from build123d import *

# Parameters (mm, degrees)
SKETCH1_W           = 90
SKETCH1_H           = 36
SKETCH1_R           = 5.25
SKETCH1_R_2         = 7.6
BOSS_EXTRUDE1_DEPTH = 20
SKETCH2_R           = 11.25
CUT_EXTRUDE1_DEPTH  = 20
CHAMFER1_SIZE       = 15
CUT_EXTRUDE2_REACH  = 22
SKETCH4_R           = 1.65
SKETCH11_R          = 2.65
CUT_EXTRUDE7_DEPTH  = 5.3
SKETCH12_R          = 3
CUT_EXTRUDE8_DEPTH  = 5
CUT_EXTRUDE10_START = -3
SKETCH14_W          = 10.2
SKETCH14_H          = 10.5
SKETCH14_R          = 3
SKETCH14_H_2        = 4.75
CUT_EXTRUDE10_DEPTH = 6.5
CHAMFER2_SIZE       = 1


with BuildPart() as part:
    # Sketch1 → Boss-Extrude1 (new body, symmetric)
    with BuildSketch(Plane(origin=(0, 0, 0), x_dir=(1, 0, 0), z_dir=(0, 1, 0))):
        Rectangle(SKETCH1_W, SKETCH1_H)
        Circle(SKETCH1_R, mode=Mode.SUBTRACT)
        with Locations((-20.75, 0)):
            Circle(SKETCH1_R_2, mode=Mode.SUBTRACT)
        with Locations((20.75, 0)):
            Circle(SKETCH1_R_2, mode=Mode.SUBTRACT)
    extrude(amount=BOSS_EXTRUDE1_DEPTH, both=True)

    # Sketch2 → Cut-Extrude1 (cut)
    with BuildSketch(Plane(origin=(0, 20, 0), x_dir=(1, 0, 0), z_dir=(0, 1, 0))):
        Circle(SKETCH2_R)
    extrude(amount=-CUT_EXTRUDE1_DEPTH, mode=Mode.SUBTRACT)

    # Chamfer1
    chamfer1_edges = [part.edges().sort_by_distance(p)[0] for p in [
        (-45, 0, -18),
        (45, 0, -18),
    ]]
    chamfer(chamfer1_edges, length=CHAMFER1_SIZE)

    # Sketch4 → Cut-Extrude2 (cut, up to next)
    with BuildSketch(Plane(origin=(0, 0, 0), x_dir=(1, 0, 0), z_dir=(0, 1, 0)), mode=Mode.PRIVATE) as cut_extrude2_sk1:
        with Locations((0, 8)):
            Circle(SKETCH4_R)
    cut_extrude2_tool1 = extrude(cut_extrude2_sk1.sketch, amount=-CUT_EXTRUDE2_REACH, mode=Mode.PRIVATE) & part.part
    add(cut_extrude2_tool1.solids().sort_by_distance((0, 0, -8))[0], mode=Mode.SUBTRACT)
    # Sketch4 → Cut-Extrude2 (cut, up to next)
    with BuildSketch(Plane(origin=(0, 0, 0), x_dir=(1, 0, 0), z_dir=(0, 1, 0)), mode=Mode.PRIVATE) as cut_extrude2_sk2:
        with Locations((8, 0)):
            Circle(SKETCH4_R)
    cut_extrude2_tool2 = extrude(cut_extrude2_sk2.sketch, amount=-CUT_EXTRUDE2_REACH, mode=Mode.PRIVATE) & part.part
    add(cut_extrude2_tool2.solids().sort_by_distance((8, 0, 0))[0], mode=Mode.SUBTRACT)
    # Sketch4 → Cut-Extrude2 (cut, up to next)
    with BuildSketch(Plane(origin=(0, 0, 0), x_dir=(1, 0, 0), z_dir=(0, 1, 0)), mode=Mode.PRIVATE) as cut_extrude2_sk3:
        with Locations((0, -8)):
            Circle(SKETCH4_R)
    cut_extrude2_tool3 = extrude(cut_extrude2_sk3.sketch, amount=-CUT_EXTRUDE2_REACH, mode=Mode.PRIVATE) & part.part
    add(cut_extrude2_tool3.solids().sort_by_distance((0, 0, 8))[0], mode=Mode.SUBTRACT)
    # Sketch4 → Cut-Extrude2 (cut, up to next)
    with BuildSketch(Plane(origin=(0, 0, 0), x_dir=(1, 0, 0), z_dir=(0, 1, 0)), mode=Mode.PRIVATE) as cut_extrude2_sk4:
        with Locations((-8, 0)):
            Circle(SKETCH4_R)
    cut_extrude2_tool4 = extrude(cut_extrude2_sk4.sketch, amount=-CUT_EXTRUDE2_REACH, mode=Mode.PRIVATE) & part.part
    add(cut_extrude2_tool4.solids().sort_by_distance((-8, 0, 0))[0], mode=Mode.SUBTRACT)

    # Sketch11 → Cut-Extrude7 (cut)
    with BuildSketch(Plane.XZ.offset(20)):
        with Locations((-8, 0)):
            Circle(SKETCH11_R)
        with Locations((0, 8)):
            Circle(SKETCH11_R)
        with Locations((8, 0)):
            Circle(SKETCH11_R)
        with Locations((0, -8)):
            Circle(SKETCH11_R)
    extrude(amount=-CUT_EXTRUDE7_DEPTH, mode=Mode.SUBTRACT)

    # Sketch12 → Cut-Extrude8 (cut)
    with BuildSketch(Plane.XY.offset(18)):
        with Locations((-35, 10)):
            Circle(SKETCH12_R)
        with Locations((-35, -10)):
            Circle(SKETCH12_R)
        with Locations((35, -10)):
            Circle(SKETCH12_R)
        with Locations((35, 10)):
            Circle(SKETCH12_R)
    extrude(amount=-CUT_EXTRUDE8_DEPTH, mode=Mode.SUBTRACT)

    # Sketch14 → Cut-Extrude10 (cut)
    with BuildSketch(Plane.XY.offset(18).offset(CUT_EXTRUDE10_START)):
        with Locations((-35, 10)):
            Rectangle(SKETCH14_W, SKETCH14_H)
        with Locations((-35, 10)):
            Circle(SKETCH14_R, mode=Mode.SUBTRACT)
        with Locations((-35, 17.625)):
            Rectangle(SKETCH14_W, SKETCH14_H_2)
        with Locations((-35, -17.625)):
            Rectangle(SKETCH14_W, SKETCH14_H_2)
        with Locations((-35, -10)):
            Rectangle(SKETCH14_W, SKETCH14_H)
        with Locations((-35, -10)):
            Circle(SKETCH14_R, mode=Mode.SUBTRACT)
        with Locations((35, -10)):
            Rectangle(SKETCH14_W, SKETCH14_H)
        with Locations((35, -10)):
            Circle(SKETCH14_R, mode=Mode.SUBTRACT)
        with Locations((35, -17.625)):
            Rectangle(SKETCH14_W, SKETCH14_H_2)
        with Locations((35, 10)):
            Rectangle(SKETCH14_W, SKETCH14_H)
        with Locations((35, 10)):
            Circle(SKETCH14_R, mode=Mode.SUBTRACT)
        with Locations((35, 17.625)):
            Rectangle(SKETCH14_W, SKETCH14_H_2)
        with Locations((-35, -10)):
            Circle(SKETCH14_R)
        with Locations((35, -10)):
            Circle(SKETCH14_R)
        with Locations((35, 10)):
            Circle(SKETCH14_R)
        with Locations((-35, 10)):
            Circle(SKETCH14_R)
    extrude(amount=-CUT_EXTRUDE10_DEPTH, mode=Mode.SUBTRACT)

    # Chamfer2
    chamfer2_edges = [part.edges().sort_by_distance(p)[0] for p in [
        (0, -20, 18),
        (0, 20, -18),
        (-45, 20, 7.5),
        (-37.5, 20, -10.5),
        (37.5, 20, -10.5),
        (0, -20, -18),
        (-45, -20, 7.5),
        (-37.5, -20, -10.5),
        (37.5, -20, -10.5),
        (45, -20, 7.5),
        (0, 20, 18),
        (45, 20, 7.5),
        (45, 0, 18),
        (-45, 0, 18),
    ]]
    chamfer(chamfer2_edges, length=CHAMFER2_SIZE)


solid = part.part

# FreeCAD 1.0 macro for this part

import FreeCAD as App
import Part
import Sketcher

V = App.Vector


def edges_at(feature, points):
    """Names of the edges that pass closest to the given points."""
    edges = feature.Shape.Edges
    near = lambda p: min(range(len(edges)), key=lambda i: edges[i].distToShape(Part.Vertex(*p))[0])
    return sorted({f"Edge{near(p) + 1}" for p in points})

doc = App.newDocument("Part")
body = doc.addObject("PartDesign::Body", "Body")

# Sketch on XZ plane
sketch1 = doc.addObject("Sketcher::SketchObject", "Sketch")
body.addObject(sketch1)
sketch1.AttachmentSupport = (doc.XZ_Plane, [""])
sketch1.MapMode = "FlatFace"
sketch1.addGeometry([
    Part.LineSegment(V(-45, -18, 0), V(-45, 18, 0)),  # 0
    Part.LineSegment(V(-45, 18, 0), V(45, 18, 0)),  # 1
    Part.LineSegment(V(45, 18, 0), V(45, -18, 0)),  # 2
    Part.LineSegment(V(45, -18, 0), V(-45, -18, 0)),  # 3
    Part.Circle(V(-20.75, 0, 0), V(0, 0, 1), 7.6),  # 4
    Part.Circle(V(0, 0, 0), V(0, 0, 1), 5.25),  # 5
    Part.Circle(V(20.75, 0, 0), V(0, 0, 1), 7.6),  # 6
], False)
sketch1.addConstraint([
    Sketcher.Constraint("Coincident", 0, 2, 1, 1),
    Sketcher.Constraint("Coincident", 1, 2, 2, 1),
    Sketcher.Constraint("Coincident", 2, 2, 3, 1),
    Sketcher.Constraint("Coincident", 3, 2, 0, 1),
    Sketcher.Constraint("Vertical", 0),
    Sketcher.Constraint("Horizontal", 1),
    Sketcher.Constraint("Vertical", 2),
    Sketcher.Constraint("Horizontal", 3),
    Sketcher.Constraint("Coincident", 5, 3, -1, 1),
    Sketcher.Constraint("Equal", 4, 6),
    Sketcher.Constraint("Symmetric", 4, 3, 6, 3, -1, 1),
    Sketcher.Constraint("Symmetric", 0, 2, 2, 2, -1, 1),
    Sketcher.Constraint("PointOnObject", 4, 3, -1),
    Sketcher.Constraint("Diameter", 4, 15.2),
    Sketcher.Constraint("Diameter", 5, 10.5),
    Sketcher.Constraint("DistanceX", 1, 1, 1, 2, 90.0),
    Sketcher.Constraint("DistanceY", 0, 1, 0, 2, 36.0),
    Sketcher.Constraint("DistanceX", 4, 3, 6, 3, 41.5),
])
pad1 = doc.addObject("PartDesign::Pad", "Pad")
body.addObject(pad1)
pad1.Profile = sketch1
pad1.Length = 40
pad1.Midplane = True

# Sketch on XZ plane
sketch2 = doc.addObject("Sketcher::SketchObject", "Sketch001")
body.addObject(sketch2)
sketch2.AttachmentSupport = (doc.XZ_Plane, [""])
sketch2.MapMode = "FlatFace"
sketch2.AttachmentOffset = App.Placement(V(0, 0, -20), App.Rotation())
sketch2.addGeometry(Part.Circle(V(0, 0, 0), V(0, 0, 1), 11.25), False)
sketch2.addConstraint([
    Sketcher.Constraint("Coincident", 0, 3, -1, 1),
    Sketcher.Constraint("Diameter", 0, 22.5),
])
pocket1 = doc.addObject("PartDesign::Pocket", "Pocket")
body.addObject(pocket1)
pocket1.Profile = sketch2
pocket1.Length = 20
pocket1.Reversed = True
doc.recompute()

chamfer = doc.addObject("PartDesign::Chamfer", "Chamfer")
body.addObject(chamfer)
chamfer.Base = (pocket1, edges_at(pocket1, [(-45, 0, -18), (45, 0, -18)]))
chamfer.Size = 15

# Sketch on XZ plane
sketch3 = doc.addObject("Sketcher::SketchObject", "Sketch002")
body.addObject(sketch3)
sketch3.AttachmentSupport = (doc.XZ_Plane, [""])
sketch3.MapMode = "FlatFace"
sketch3.addGeometry(Part.Circle(V(0, -8, 0), V(0, 0, 1), 1.65), False)
sketch3.addConstraint([
    Sketcher.Constraint("PointOnObject", 0, 3, -2),
    Sketcher.Constraint("Diameter", 0, 3.3),
    Sketcher.Constraint("DistanceY", 0, 3, -1, 1, 8.0),
])
pocket2 = doc.addObject("PartDesign::Pocket", "Pocket001")
body.addObject(pocket2)
pocket2.Profile = sketch3
pocket2.Type = "UpToFirst"
pocket2.Reversed = True

# Sketch on XZ plane
sketch4 = doc.addObject("Sketcher::SketchObject", "Sketch003")
body.addObject(sketch4)
sketch4.AttachmentSupport = (doc.XZ_Plane, [""])
sketch4.MapMode = "FlatFace"
sketch4.addGeometry(Part.Circle(V(8, 0, 0), V(0, 0, 1), 1.65), False)
sketch4.addConstraint([
    Sketcher.Constraint("PointOnObject", 0, 3, -1),
    Sketcher.Constraint("Diameter", 0, 3.3),
    Sketcher.Constraint("DistanceX", -1, 1, 0, 3, 8.0),
])
pocket3 = doc.addObject("PartDesign::Pocket", "Pocket002")
body.addObject(pocket3)
pocket3.Profile = sketch4
pocket3.Type = "UpToFirst"
pocket3.Reversed = True

# Sketch on XZ plane
sketch5 = doc.addObject("Sketcher::SketchObject", "Sketch004")
body.addObject(sketch5)
sketch5.AttachmentSupport = (doc.XZ_Plane, [""])
sketch5.MapMode = "FlatFace"
sketch5.addGeometry(Part.Circle(V(0, 8, 0), V(0, 0, 1), 1.65), False)
sketch5.addConstraint([
    Sketcher.Constraint("PointOnObject", 0, 3, -2),
    Sketcher.Constraint("Diameter", 0, 3.3),
    Sketcher.Constraint("DistanceY", -1, 1, 0, 3, 8.0),
])
pocket4 = doc.addObject("PartDesign::Pocket", "Pocket003")
body.addObject(pocket4)
pocket4.Profile = sketch5
pocket4.Type = "UpToFirst"
pocket4.Reversed = True

# Sketch on XZ plane
sketch6 = doc.addObject("Sketcher::SketchObject", "Sketch005")
body.addObject(sketch6)
sketch6.AttachmentSupport = (doc.XZ_Plane, [""])
sketch6.MapMode = "FlatFace"
sketch6.addGeometry(Part.Circle(V(-8, 0, 0), V(0, 0, 1), 1.65), False)
sketch6.addConstraint([
    Sketcher.Constraint("PointOnObject", 0, 3, -1),
    Sketcher.Constraint("Diameter", 0, 3.3),
    Sketcher.Constraint("DistanceX", 0, 3, -1, 1, 8.0),
])
pocket5 = doc.addObject("PartDesign::Pocket", "Pocket004")
body.addObject(pocket5)
pocket5.Profile = sketch6
pocket5.Type = "UpToFirst"
pocket5.Reversed = True

# Sketch on XZ plane
sketch7 = doc.addObject("Sketcher::SketchObject", "Sketch006")
body.addObject(sketch7)
sketch7.AttachmentSupport = (doc.XZ_Plane, [""])
sketch7.MapMode = "FlatFace"
sketch7.AttachmentOffset = App.Placement(V(0, 0, 20), App.Rotation())
sketch7.addGeometry([
    Part.Circle(V(-8, 0, 0), V(0, 0, 1), 2.65),
    Part.Circle(V(0, 8, 0), V(0, 0, 1), 2.65),
    Part.Circle(V(8, 0, 0), V(0, 0, 1), 2.65),
    Part.Circle(V(0, -8, 0), V(0, 0, 1), 2.65),
], False)
sketch7.addConstraint([
    Sketcher.Constraint("Equal", 0, 1),
    Sketcher.Constraint("Equal", 1, 2),
    Sketcher.Constraint("Equal", 2, 3),
    Sketcher.Constraint("Symmetric", 0, 3, 2, 3, -1, 1),
    Sketcher.Constraint("Symmetric", 1, 3, 3, 3, -1, 1),
    Sketcher.Constraint("PointOnObject", 0, 3, -1),
    Sketcher.Constraint("PointOnObject", 1, 3, -2),
    Sketcher.Constraint("Diameter", 0, 5.3),
    Sketcher.Constraint("DistanceX", 0, 3, -1, 1, 8.0),
    Sketcher.Constraint("DistanceY", -1, 1, 1, 3, 8.0),
])
pocket6 = doc.addObject("PartDesign::Pocket", "Pocket005")
body.addObject(pocket6)
pocket6.Profile = sketch7
pocket6.Length = 5.3

# Sketch on XY plane
sketch8 = doc.addObject("Sketcher::SketchObject", "Sketch007")
body.addObject(sketch8)
sketch8.AttachmentSupport = (doc.XY_Plane, [""])
sketch8.MapMode = "FlatFace"
sketch8.AttachmentOffset = App.Placement(V(0, 0, 18), App.Rotation())
sketch8.addGeometry([
    Part.Circle(V(-35, 10, 0), V(0, 0, 1), 3),
    Part.Circle(V(-35, -10, 0), V(0, 0, 1), 3),
    Part.Circle(V(35, -10, 0), V(0, 0, 1), 3),
    Part.Circle(V(35, 10, 0), V(0, 0, 1), 3),
], False)
sketch8.addConstraint([
    Sketcher.Constraint("Equal", 0, 1),
    Sketcher.Constraint("Equal", 1, 2),
    Sketcher.Constraint("Equal", 2, 3),
    Sketcher.Constraint("Symmetric", 0, 3, 2, 3, -1, 1),
    Sketcher.Constraint("Symmetric", 1, 3, 3, 3, -1, 1),
    Sketcher.Constraint("Symmetric", 1, 3, 2, 3, -2),
    Sketcher.Constraint("Diameter", 0, 6.0),
    Sketcher.Constraint("DistanceX", 0, 3, -1, 1, 35.0),
    Sketcher.Constraint("DistanceY", -1, 1, 0, 3, 10.0),
])
pocket7 = doc.addObject("PartDesign::Pocket", "Pocket006")
body.addObject(pocket7)
pocket7.Profile = sketch8
pocket7.Length = 5

# Sketch on XY plane
sketch9 = doc.addObject("Sketcher::SketchObject", "Sketch008")
body.addObject(sketch9)
sketch9.AttachmentSupport = (doc.XY_Plane, [""])
sketch9.MapMode = "FlatFace"
sketch9.AttachmentOffset = App.Placement(V(0, 0, 15), App.Rotation())
sketch9.addGeometry([
    Part.LineSegment(V(-40.1, 4.75, 0), V(-29.9, 4.75, 0)),  # 0
    Part.LineSegment(V(-29.9, 4.75, 0), V(-29.9, 20, 0)),  # 1
    Part.LineSegment(V(-29.9, 20, 0), V(-40.1, 20, 0)),  # 2
    Part.LineSegment(V(-40.1, 20, 0), V(-40.1, 4.75, 0)),  # 3
    Part.LineSegment(V(-40.1, -20, 0), V(-29.9, -20, 0)),  # 4
    Part.LineSegment(V(-29.9, -20, 0), V(-29.9, -4.75, 0)),  # 5
    Part.LineSegment(V(-29.9, -4.75, 0), V(-40.1, -4.75, 0)),  # 6
    Part.LineSegment(V(-40.1, -4.75, 0), V(-40.1, -20, 0)),  # 7
    Part.LineSegment(V(29.9, -4.75, 0), V(29.9, -20, 0)),  # 8
    Part.LineSegment(V(29.9, -20, 0), V(40.1, -20, 0)),  # 9
    Part.LineSegment(V(40.1, -20, 0), V(40.1, -4.75, 0)),  # 10
    Part.LineSegment(V(40.1, -4.75, 0), V(29.9, -4.75, 0)),  # 11
    Part.LineSegment(V(29.9, 4.75, 0), V(40.1, 4.75, 0)),  # 12
    Part.LineSegment(V(40.1, 4.75, 0), V(40.1, 20, 0)),  # 13
    Part.LineSegment(V(40.1, 20, 0), V(29.9, 20, 0)),  # 14
    Part.LineSegment(V(29.9, 20, 0), V(29.9, 4.75, 0)),  # 15
], False)
sketch9.addConstraint([
    Sketcher.Constraint("Coincident", 0, 2, 1, 1),
    Sketcher.Constraint("Coincident", 1, 2, 2, 1),
    Sketcher.Constraint("Coincident", 2, 2, 3, 1),
    Sketcher.Constraint("Coincident", 3, 2, 0, 1),
    Sketcher.Constraint("Coincident", 4, 2, 5, 1),
    Sketcher.Constraint("Coincident", 5, 2, 6, 1),
    Sketcher.Constraint("Coincident", 6, 2, 7, 1),
    Sketcher.Constraint("Coincident", 7, 2, 4, 1),
    Sketcher.Constraint("Coincident", 8, 2, 9, 1),
    Sketcher.Constraint("Coincident", 9, 2, 10, 1),
    Sketcher.Constraint("Coincident", 10, 2, 11, 1),
    Sketcher.Constraint("Coincident", 11, 2, 8, 1),
    Sketcher.Constraint("Coincident", 12, 2, 13, 1),
    Sketcher.Constraint("Coincident", 13, 2, 14, 1),
    Sketcher.Constraint("Coincident", 14, 2, 15, 1),
    Sketcher.Constraint("Coincident", 15, 2, 12, 1),
    Sketcher.Constraint("Horizontal", 0),
    Sketcher.Constraint("Vertical", 1),
    Sketcher.Constraint("Horizontal", 2),
    Sketcher.Constraint("Vertical", 3),
    Sketcher.Constraint("Horizontal", 4),
    Sketcher.Constraint("Vertical", 5),
    Sketcher.Constraint("Horizontal", 6),
    Sketcher.Constraint("Vertical", 7),
    Sketcher.Constraint("Vertical", 8),
    Sketcher.Constraint("Horizontal", 9),
    Sketcher.Constraint("Vertical", 10),
    Sketcher.Constraint("Horizontal", 11),
    Sketcher.Constraint("Horizontal", 12),
    Sketcher.Constraint("Vertical", 13),
    Sketcher.Constraint("Horizontal", 14),
    Sketcher.Constraint("Vertical", 15),
    Sketcher.Constraint("Symmetric", 1, 2, 8, 2, -1, 1),
    Sketcher.Constraint("Symmetric", 3, 2, 10, 2, -1, 1),
    Sketcher.Constraint("Symmetric", 6, 2, 12, 2, -1, 1),
    Sketcher.Constraint("Symmetric", 4, 2, 14, 2, -1, 1),
    Sketcher.Constraint("Symmetric", 4, 2, 8, 2, -2),
    Sketcher.Constraint("Symmetric", 6, 2, 10, 2, -2),
    Sketcher.Constraint("DistanceX", 0, 1, 0, 2, 10.2),
    Sketcher.Constraint("DistanceY", -1, 1, 1, 2, 20.0),
    Sketcher.Constraint("DistanceX", 7, 2, 8, 2, 70.0),
    Sketcher.Constraint("DistanceY", 1, 1, 1, 2, 15.25),
])
pocket8 = doc.addObject("PartDesign::Pocket", "Pocket007")
body.addObject(pocket8)
pocket8.Profile = sketch9
pocket8.Length = 6.5
doc.recompute()

chamfer2 = doc.addObject("PartDesign::Chamfer", "Chamfer001")
body.addObject(chamfer2)
chamfer2.Base = (pocket8, edges_at(pocket8, [
    (0, -20, 18),
    (0, 20, -18),
    (-45, 20, 7.5),
    (-37.5, 20, -10.5),
    (37.5, 20, -10.5),
    (0, -20, -18),
    (-45, -20, 7.5),
    (-37.5, -20, -10.5),
    (37.5, -20, -10.5),
    (45, -20, 7.5),
    (0, 20, 18),
    (45, 20, 7.5),
    (45, 0, 18),
    (-45, 0, 18),
]))
chamfer2.Size = 1

doc.recompute()
